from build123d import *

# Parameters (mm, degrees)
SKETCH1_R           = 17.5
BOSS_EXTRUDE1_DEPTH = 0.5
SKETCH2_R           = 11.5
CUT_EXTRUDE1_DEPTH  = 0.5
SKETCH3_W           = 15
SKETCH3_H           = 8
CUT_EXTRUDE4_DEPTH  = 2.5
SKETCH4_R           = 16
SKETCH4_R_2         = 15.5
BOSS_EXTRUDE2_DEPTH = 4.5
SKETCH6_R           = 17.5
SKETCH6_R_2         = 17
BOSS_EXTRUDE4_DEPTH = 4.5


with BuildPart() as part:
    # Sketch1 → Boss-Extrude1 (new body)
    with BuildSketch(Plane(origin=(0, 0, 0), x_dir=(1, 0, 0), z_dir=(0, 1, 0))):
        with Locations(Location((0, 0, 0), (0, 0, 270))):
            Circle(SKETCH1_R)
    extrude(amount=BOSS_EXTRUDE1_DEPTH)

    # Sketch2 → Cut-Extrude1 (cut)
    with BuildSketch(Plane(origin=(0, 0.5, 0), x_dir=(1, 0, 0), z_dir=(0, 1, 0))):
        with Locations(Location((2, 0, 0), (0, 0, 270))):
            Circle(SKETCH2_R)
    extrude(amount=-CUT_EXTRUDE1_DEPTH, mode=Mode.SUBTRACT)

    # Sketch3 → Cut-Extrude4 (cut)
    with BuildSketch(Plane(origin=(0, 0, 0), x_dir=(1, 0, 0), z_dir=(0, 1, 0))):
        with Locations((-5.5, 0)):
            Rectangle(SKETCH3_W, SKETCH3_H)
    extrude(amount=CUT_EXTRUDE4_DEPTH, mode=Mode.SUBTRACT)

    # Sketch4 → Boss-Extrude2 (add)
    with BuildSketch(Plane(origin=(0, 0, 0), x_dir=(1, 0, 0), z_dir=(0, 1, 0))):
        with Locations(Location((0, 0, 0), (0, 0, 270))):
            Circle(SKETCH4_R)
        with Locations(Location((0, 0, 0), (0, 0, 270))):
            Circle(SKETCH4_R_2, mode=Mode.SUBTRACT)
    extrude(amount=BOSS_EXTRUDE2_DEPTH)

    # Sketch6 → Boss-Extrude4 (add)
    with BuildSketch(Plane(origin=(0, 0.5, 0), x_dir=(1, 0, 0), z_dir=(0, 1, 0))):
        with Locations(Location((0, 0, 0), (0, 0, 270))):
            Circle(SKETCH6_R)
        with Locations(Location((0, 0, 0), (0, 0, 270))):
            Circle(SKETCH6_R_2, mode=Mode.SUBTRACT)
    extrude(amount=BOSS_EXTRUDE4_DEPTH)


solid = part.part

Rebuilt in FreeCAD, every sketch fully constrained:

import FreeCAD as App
import Part
import Sketcher
from FreeCAD import Vector
Q = App.Units.Quantity


def add_polygon(sketch, points):
    """Adds a closed chain of lines whose ends are joined by coincident constraints."""
    first, n = sketch.GeometryCount, len(points)
    for a, b in zip(points, points[1:] + points[:1]):
        sketch.addGeometry(Part.LineSegment(App.Vector(*a, 0), App.Vector(*b, 0)), False)
    for i in range(n):
        sketch.addConstraint(Sketcher.Constraint("Coincident", first + i, 2, first + (i + 1) % n, 1))

doc = App.newDocument("Part")
body = doc.addObject("PartDesign::Body", "Body")

# Sketch on XZ plane
sketch1 = doc.addObject("Sketcher::SketchObject", "Sketch")
body.addObject(sketch1)
sketch1.AttachmentSupport = (doc.XZ_Plane, [""])
sketch1.MapMode = "FlatFace"
sketch1.addGeometry(Part.Circle(Vector(0, 0, 0), Vector(0, 0, 1), 18), False)
sketch1.addConstraint(Sketcher.Constraint("Coincident", 0, 3, -1, 1))
sketch1.addConstraint(Sketcher.Constraint("Diameter", 0, Q("35 mm")))
pad1 = doc.addObject("PartDesign::Pad", "Pad")
body.addObject(pad1)
pad1.Profile = sketch1
pad1.Length = 0.5
pad1.Reversed = True

# Sketch on XZ plane
sketch2 = doc.addObject("Sketcher::SketchObject", "Sketch001")
body.addObject(sketch2)
sketch2.AttachmentSupport = (doc.XZ_Plane, [""])
sketch2.MapMode = "FlatFace"
sketch2.AttachmentOffset = App.Placement(Vector(0, 0, -0.5), App.Rotation())
sketch2.addGeometry(Part.Circle(Vector(2, 0, 0), Vector(0, 0, 1), 12), False)
sketch2.addConstraint(Sketcher.Constraint("PointOnObject", 0, 3, -1))
sketch2.addConstraint(Sketcher.Constraint("Diameter", 0, Q("23 mm")))
sketch2.addConstraint(Sketcher.Constraint("DistanceX", -1, 1, 0, 3, Q("2 mm")))
pocket1 = doc.addObject("PartDesign::Pocket", "Pocket")
body.addObject(pocket1)
pocket1.Profile = sketch2
pocket1.Length = 0.5
pocket1.Reversed = True

# Sketch on XZ plane
sketch3 = doc.addObject("Sketcher::SketchObject", "Sketch002")
body.addObject(sketch3)
sketch3.AttachmentSupport = (doc.XZ_Plane, [""])
sketch3.MapMode = "FlatFace"
add_polygon(sketch3, [(-13, -4), (-13, 4), (2, 4), (2, -4)])  # lines 0-3
sketch3.addConstraint(Sketcher.Constraint("Vertical", 0))
sketch3.addConstraint(Sketcher.Constraint("Horizontal", 1))
sketch3.addConstraint(Sketcher.Constraint("Vertical", 2))
sketch3.addConstraint(Sketcher.Constraint("Horizontal", 3))
sketch3.addConstraint(Sketcher.Constraint("DistanceX", 1, 1, 1, 2, Q("15 mm")))
sketch3.addConstraint(Sketcher.Constraint("DistanceY", 0, 1, 0, 2, Q("8 mm")))
sketch3.addConstraint(Sketcher.Constraint("DistanceX", 0, 2, -1, 1, Q("13 mm")))
sketch3.addConstraint(Sketcher.Constraint("DistanceY", -1, 1, 0, 2, Q("4 mm")))
pocket2 = doc.addObject("PartDesign::Pocket", "Pocket001")
body.addObject(pocket2)
pocket2.Profile = sketch3
pocket2.Length = 2.5

# Sketch on XZ plane
sketch4 = doc.addObject("Sketcher::SketchObject", "Sketch003")
body.addObject(sketch4)
sketch4.AttachmentSupport = (doc.XZ_Plane, [""])
sketch4.MapMode = "FlatFace"
sketch4.addGeometry(Part.Circle(Vector(0, 0, 0), Vector(0, 0, 1), 16), False)
sketch4.addGeometry(Part.Circle(Vector(0, 0, 0), Vector(0, 0, 1), 16), False)
sketch4.addConstraint(Sketcher.Constraint("Coincident", 0, 3, -1, 1))
sketch4.addConstraint(Sketcher.Constraint("Coincident", 1, 3, -1, 1))
sketch4.addConstraint(Sketcher.Constraint("Diameter", 0, Q("32 mm")))
sketch4.addConstraint(Sketcher.Constraint("Diameter", 1, Q("31 mm")))
pad2 = doc.addObject("PartDesign::Pad", "Pad001")
body.addObject(pad2)
pad2.Profile = sketch4
pad2.Length = 4.5
pad2.Reversed = True

# Sketch on XZ plane
sketch5 = doc.addObject("Sketcher::SketchObject", "Sketch004")
body.addObject(sketch5)
sketch5.AttachmentSupport = (doc.XZ_Plane, [""])
sketch5.MapMode = "FlatFace"
sketch5.AttachmentOffset = App.Placement(Vector(0, 0, -0.5), App.Rotation())
sketch5.addGeometry(Part.Circle(Vector(0, 0, 0), Vector(0, 0, 1), 18), False)
sketch5.addGeometry(Part.Circle(Vector(0, 0, 0), Vector(0, 0, 1), 17), False)
sketch5.addConstraint(Sketcher.Constraint("Coincident", 0, 3, -1, 1))
sketch5.addConstraint(Sketcher.Constraint("Coincident", 1, 3, -1, 1))
sketch5.addConstraint(Sketcher.Constraint("Diameter", 0, Q("35 mm")))
sketch5.addConstraint(Sketcher.Constraint("Diameter", 1, Q("34 mm")))
pad3 = doc.addObject("PartDesign::Pad", "Pad002")
body.addObject(pad3)
pad3.Profile = sketch5
pad3.Length = 4.5
pad3.Reversed = True

doc.recompute()
